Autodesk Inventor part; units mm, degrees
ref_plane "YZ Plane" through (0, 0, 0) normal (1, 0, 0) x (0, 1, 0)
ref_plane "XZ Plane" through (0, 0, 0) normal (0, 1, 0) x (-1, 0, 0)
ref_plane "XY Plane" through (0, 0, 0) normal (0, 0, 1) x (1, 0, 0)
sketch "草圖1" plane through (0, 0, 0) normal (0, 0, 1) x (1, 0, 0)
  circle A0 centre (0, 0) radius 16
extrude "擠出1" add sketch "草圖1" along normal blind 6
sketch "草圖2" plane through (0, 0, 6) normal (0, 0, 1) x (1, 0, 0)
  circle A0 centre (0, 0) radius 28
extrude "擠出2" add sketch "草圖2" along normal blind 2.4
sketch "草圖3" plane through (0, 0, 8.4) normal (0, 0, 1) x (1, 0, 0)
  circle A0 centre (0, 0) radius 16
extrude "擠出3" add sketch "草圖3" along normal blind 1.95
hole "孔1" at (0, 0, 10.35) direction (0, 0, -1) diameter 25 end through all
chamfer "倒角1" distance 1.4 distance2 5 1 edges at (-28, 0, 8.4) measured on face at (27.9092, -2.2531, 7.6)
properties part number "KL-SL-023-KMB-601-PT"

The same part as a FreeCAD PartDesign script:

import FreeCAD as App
import Part
import Sketcher


def edges_at(feature, points):
    """Names of the edges that pass closest to the given points."""
    edges = feature.Shape.Edges
    near = lambda p: min(range(len(edges)), key=lambda i: edges[i].distToShape(Part.Vertex(*p))[0])
    return sorted({f"Edge{near(p) + 1}" for p in points})

doc = App.newDocument("Part")
body = doc.addObject("PartDesign::Body", "Body")

# Sketch on XY plane
sketch1 = body.newObject("Sketcher::SketchObject", "Sketch")
sketch1.AttachmentSupport = (doc.getObject("XY_Plane"), [""])
sketch1.MapMode = "FlatFace"
sketch1.addGeometry(Part.Circle(App.Vector(0, 0, 0), App.Vector(0, 0, 1), 16), False)
sketch1.addConstraint([
    Sketcher.Constraint("Coincident", 0, 3, -1, 1),
    Sketcher.Constraint("Diameter", 0, 32.0),
])
pad1 = body.newObject("PartDesign::Pad", "Pad")
pad1.Profile = sketch1
pad1.Length = 6

# Sketch on XY plane
sketch2 = body.newObject("Sketcher::SketchObject", "Sketch001")
sketch2.AttachmentSupport = (doc.getObject("XY_Plane"), [""])
sketch2.MapMode = "FlatFace"
sketch2.AttachmentOffset = App.Placement(App.Vector(0, 0, 6), App.Rotation())
sketch2.addGeometry(Part.Circle(App.Vector(0, 0, 0), App.Vector(0, 0, 1), 28), False)
sketch2.addConstraint([
    Sketcher.Constraint("Coincident", 0, 3, -1, 1),
    Sketcher.Constraint("Diameter", 0, 56.0),
])
pad2 = body.newObject("PartDesign::Pad", "Pad001")
pad2.Profile = sketch2
pad2.Length = 2.4

# Sketch on XY plane
sketch3 = body.newObject("Sketcher::SketchObject", "Sketch002")
sketch3.AttachmentSupport = (doc.getObject("XY_Plane"), [""])
sketch3.MapMode = "FlatFace"
sketch3.AttachmentOffset = App.Placement(App.Vector(0, 0, 8.4), App.Rotation())
sketch3.addGeometry(Part.Circle(App.Vector(0, 0, 0), App.Vector(0, 0, 1), 16), False)
sketch3.addConstraint([
    Sketcher.Constraint("Coincident", 0, 3, -1, 1),
    Sketcher.Constraint("Diameter", 0, 32.0),
])
pad3 = body.newObject("PartDesign::Pad", "Pad002")
pad3.Profile = sketch3
pad3.Length = 1.95

# Sketch on XY plane
sketch4 = body.newObject("Sketcher::SketchObject", "Sketch003")
sketch4.AttachmentSupport = (doc.getObject("XY_Plane"), [""])
sketch4.MapMode = "FlatFace"
sketch4.AttachmentOffset = App.Placement(App.Vector(0, 0, 10.35), App.Rotation())
sketch4.addGeometry(Part.Circle(App.Vector(0, 0, 0), App.Vector(0, 0, 1), 12.5), False)
sketch4.addConstraint([
    Sketcher.Constraint("Coincident", 0, 3, -1, 1),
    Sketcher.Constraint("Diameter", 0, 25.0),
])
doc.recompute()
hole = body.newObject("PartDesign::Hole", "Hole")
hole.Profile = sketch4
hole.ThreadType = "None"
hole.Diameter = 25
hole.DepthType = "ThroughAll"
doc.recompute()

chamfer = body.newObject("PartDesign::Chamfer", "Chamfer")
chamfer.Base = (hole, edges_at(hole, [(-28, 0, 8.4)]))
chamfer.ChamferType = "Two distances"
chamfer.Size = 1.4
chamfer.Size2 = 5

doc.recompute()
